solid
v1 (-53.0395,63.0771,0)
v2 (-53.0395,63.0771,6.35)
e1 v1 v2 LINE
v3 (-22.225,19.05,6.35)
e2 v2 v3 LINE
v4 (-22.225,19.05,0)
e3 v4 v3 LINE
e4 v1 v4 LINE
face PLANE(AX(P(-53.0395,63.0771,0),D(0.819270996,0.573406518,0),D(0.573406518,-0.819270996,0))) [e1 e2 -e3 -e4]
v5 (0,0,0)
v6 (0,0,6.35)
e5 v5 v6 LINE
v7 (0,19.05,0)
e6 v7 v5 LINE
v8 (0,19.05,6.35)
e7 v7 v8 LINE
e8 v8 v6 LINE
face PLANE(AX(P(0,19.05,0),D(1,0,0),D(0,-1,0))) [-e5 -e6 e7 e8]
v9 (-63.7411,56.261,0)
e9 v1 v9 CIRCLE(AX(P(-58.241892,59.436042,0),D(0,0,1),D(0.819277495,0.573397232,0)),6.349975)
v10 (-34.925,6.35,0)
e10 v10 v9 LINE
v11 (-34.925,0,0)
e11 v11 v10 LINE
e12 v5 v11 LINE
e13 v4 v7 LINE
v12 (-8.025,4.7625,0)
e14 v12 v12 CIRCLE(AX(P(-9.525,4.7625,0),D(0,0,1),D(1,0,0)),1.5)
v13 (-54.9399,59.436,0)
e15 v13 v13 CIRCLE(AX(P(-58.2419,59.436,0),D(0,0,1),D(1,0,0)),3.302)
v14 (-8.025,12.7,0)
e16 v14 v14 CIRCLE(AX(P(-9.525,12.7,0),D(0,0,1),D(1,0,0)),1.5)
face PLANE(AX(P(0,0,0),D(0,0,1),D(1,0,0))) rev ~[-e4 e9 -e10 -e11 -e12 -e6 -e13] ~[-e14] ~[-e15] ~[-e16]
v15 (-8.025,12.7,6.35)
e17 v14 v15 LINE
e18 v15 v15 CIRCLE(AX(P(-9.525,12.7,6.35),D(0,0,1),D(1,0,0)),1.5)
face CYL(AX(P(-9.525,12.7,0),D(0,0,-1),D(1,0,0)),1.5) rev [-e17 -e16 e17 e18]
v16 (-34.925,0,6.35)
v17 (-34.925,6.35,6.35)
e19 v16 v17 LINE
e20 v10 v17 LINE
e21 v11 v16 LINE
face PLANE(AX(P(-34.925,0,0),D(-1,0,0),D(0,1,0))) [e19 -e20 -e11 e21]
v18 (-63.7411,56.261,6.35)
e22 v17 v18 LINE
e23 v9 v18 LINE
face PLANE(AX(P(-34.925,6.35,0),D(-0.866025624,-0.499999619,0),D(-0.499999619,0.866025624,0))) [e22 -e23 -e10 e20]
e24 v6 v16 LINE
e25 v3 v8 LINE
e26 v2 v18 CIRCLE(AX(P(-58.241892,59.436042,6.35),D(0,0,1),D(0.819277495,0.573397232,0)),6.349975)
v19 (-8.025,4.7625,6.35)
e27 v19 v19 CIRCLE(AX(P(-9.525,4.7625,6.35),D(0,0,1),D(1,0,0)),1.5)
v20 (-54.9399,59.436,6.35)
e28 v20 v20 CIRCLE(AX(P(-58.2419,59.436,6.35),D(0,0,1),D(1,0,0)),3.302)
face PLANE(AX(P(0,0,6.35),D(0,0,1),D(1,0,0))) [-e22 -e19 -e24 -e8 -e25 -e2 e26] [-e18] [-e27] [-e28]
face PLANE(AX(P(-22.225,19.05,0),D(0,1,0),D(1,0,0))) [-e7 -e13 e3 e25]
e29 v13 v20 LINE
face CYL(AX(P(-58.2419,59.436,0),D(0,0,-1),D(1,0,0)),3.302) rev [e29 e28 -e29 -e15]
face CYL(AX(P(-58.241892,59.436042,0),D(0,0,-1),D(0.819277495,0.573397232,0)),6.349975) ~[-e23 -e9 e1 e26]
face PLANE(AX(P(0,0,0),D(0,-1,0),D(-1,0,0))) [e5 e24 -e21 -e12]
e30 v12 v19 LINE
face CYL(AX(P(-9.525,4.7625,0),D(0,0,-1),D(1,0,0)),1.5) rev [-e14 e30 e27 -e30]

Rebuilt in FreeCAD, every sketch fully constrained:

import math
import FreeCAD as App
import Part
import Sketcher

V = App.Vector
Q = App.Units.Quantity

doc = App.newDocument("Part")
body = doc.addObject("PartDesign::Body", "Body")

sketch1 = body.newObject("Sketcher::SketchObject", "Sketch")
sketch1.AttachmentSupport = (doc.getObject("XY_Plane"), [""])
sketch1.MapMode = "FlatFace"
sketch1.addGeometry([
    Part.LineSegment(V(-34.9, 0, 0), V(0, 0, 0)),
    Part.LineSegment(V(0, 0, 0), V(0, 19.1, 0)),
    Part.LineSegment(V(0, 19.1, 0), V(-22.2, 19.1, 0)),
    Part.LineSegment(V(-22.2, 19.1, 0), V(-53, 63.1, 0)),
    Part.ArcOfCircle(Part.Circle(V(-58.2, 59.4, 0), V(0, 0, 1), 6.4), math.radians(35), math.radians(210)),
    Part.LineSegment(V(-63.7, 56.3, 0), V(-34.9, 6.3, 0)),
    Part.LineSegment(V(-34.9, 6.3, 0), V(-34.9, 0, 0)),
    Part.Circle(V(-9.5, 4.8, 0), V(0, 0, 1), 1.5),
    Part.Circle(V(-9.5, 12.7, 0), V(0, 0, 1), 1.5),
    Part.Circle(V(-58.2, 59.4, 0), V(0, 0, 1), 3.3),
], False)
sketch1.addConstraint([
    Sketcher.Constraint("Coincident", 0, 2, 1, 1),
    Sketcher.Constraint("Coincident", 1, 2, 2, 1),
    Sketcher.Constraint("Coincident", 2, 2, 3, 1),
    Sketcher.Constraint("Tangent", 3, 2, 4, 1),
    Sketcher.Constraint("Tangent", 4, 2, 5, 1),
    Sketcher.Constraint("Coincident", 5, 2, 6, 1),
    Sketcher.Constraint("Coincident", 6, 2, 0, 1),
    Sketcher.Constraint("Horizontal", 0),
    Sketcher.Constraint("Vertical", 1),
    Sketcher.Constraint("Horizontal", 2),
    Sketcher.Constraint("Vertical", 6),
    Sketcher.Constraint("Coincident", 0, 2, -1, 1),
    Sketcher.Constraint("Coincident", 9, 3, 4, 3),
    Sketcher.Constraint("Equal", 7, 8),
    Sketcher.Constraint("Vertical", 7, 3, 8, 3),
    Sketcher.Constraint("Diameter", 9, Q("0.26 in")),
    Sketcher.Constraint("Radius", 4, Q("0.25 in")),
    Sketcher.Constraint("DistanceX", 5, 2, 7, 3, Q("1 in")),
    Sketcher.Constraint("Diameter", 7, Q("0.1181 in")),
    Sketcher.Constraint("DistanceY", 1, 1, 1, 2, Q("0.75 in")),
    Sketcher.Constraint("DistanceY", 6, 2, 6, 1, Q("0.25 in")),
    Sketcher.Constraint("DistanceY", -1, 1, 8, 3, Q("0.5 in")),
    Sketcher.Constraint("DistanceX", 2, 2, 8, 3, Q("0.5 in")),
    Sketcher.Constraint("DistanceX", 0, 1, 0, 2, Q("1.375 in")),
    Sketcher.Constraint("DistanceY", 1, 2, 4, 3, Q("1.59 in")),
    Sketcher.Constraint("Angle", 5, Q("-60 deg")),
    Sketcher.Constraint("DistanceY", 7, 3, 8, 3, Q("0.3125 in")),
])
pad1 = body.newObject("PartDesign::Pad", "Pad")
pad1.Profile = sketch1
pad1.Length = Q("0.25 in")

doc.recompute()
